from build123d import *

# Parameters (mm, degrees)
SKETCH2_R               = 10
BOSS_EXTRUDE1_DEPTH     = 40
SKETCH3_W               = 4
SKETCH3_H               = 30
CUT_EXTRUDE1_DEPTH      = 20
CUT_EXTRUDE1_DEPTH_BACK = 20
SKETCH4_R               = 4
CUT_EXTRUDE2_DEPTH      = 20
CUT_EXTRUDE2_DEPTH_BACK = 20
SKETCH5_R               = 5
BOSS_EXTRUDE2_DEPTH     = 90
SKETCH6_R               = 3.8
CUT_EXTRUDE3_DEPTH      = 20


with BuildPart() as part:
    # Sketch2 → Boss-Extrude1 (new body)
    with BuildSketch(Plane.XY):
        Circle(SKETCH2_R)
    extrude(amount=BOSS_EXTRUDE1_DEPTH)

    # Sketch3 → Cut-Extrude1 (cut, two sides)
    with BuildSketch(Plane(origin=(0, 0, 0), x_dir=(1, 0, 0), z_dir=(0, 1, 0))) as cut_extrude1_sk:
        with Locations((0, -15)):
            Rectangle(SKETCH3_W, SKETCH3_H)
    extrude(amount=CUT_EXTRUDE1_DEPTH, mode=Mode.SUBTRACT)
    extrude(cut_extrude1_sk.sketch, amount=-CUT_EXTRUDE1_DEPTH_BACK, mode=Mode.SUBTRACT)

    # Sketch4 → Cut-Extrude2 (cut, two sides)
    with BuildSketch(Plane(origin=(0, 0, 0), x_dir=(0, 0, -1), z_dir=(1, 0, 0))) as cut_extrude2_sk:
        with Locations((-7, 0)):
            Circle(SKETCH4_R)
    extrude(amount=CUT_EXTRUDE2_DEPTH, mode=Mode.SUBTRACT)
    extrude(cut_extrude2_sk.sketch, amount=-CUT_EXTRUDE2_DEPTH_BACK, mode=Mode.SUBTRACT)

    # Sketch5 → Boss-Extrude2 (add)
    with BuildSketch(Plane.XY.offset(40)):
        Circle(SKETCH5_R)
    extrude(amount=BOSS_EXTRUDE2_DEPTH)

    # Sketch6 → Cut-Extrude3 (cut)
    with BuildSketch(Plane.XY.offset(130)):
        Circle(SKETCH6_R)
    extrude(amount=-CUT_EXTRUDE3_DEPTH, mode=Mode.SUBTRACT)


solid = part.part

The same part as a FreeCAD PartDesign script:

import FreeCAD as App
import Part
import Sketcher

doc = App.newDocument("Part")
params = doc.addObject("Spreadsheet::Sheet", "Params")
for row, (alias, value) in enumerate([
    ("sketch1_diameter", "20 mm"),
    ("pad1_length", "40 mm"),
    ("sketch2_width", "4 mm"),
    ("sketch2_height", "30 mm"),
    ("sketch3_diameter", "8 mm"),
    ("sketch4_diameter", "10 mm"),
    ("pad2_length", "90 mm"),
    ("sketch5_diameter", "7.6 mm"),
    ("pocket3_length", "20 mm"),
], start=1):
    params.set(f"A{row}", alias)
    params.set(f"B{row}", "=" + value)
    params.setAlias(f"B{row}", alias)

body = doc.addObject("PartDesign::Body", "Body")

# Sketch on XY plane
sketch1 = body.newObject("Sketcher::SketchObject", "Sketch")
sketch1.AttachmentSupport = (doc.getObject("XY_Plane"), [""])
sketch1.MapMode = "FlatFace"
sketch1.addGeometry(Part.Circle(App.Vector(0, 0, 0), App.Vector(0, 0, 1), 10), False)
sketch1.addConstraint(Sketcher.Constraint("Coincident", 0, 3, -1, 1))
sketch1.addConstraint(Sketcher.Constraint("Diameter", 0, 20.0))
sketch1.setExpression("Constraints[1]", "Params.sketch1_diameter")
pad1 = body.newObject("PartDesign::Pad", "Pad")
pad1.Profile = sketch1
pad1.setExpression("Length", "Params.pad1_length")

# Sketch on XZ plane
sketch2 = body.newObject("Sketcher::SketchObject", "Sketch001")
sketch2.AttachmentSupport = (doc.getObject("XZ_Plane"), [""])
sketch2.MapMode = "FlatFace"
sketch2.addGeometry(Part.LineSegment(App.Vector(-2, 0, 0), App.Vector(-2, 30, 0)), False)
sketch2.addGeometry(Part.LineSegment(App.Vector(-2, 30, 0), App.Vector(2, 30, 0)), False)
sketch2.addGeometry(Part.LineSegment(App.Vector(2, 30, 0), App.Vector(2, 0, 0)), False)
sketch2.addGeometry(Part.LineSegment(App.Vector(2, 0, 0), App.Vector(-2, 0, 0)), False)
sketch2.addConstraint(Sketcher.Constraint("Coincident", 0, 2, 1, 1))
sketch2.addConstraint(Sketcher.Constraint("Coincident", 1, 2, 2, 1))
sketch2.addConstraint(Sketcher.Constraint("Coincident", 2, 2, 3, 1))
sketch2.addConstraint(Sketcher.Constraint("Coincident", 3, 2, 0, 1))
sketch2.addConstraint(Sketcher.Constraint("Vertical", 0))
sketch2.addConstraint(Sketcher.Constraint("Horizontal", 1))
sketch2.addConstraint(Sketcher.Constraint("Vertical", 2))
sketch2.addConstraint(Sketcher.Constraint("Horizontal", 3))
sketch2.addConstraint(Sketcher.Constraint("Symmetric", 2, 2, 3, 2, -1, 1))
sketch2.addConstraint(Sketcher.Constraint("DistanceX", 1, 1, 1, 2, 4.0))
sketch2.addConstraint(Sketcher.Constraint("DistanceY", 0, 1, 0, 2, 30.0))
sketch2.setExpression("Constraints[9]", "Params.sketch2_width")
sketch2.setExpression("Constraints[10]", "Params.sketch2_height")
pocket1 = body.newObject("PartDesign::Pocket", "Pocket")
pocket1.Profile = sketch2
pocket1.Type = "ThroughAll"
pocket1.Midplane = True

# Sketch on YZ plane
sketch3 = body.newObject("Sketcher::SketchObject", "Sketch002")
sketch3.AttachmentSupport = (doc.getObject("YZ_Plane"), [""])
sketch3.MapMode = "FlatFace"
sketch3.addGeometry(Part.Circle(App.Vector(0, 7, 0), App.Vector(0, 0, 1), 4), False)
sketch3.addConstraint(Sketcher.Constraint("PointOnObject", 0, 3, -2))
sketch3.addConstraint(Sketcher.Constraint("Diameter", 0, 8.0))
sketch3.addConstraint(Sketcher.Constraint("DistanceY", -1, 1, 0, 3, 7.0))
sketch3.setExpression("Constraints[1]", "Params.sketch3_diameter")
pocket2 = body.newObject("PartDesign::Pocket", "Pocket001")
pocket2.Profile = sketch3
pocket2.Type = "ThroughAll"
pocket2.Midplane = True

# Sketch on XY plane
sketch4 = body.newObject("Sketcher::SketchObject", "Sketch003")
sketch4.AttachmentSupport = (doc.getObject("XY_Plane"), [""])
sketch4.MapMode = "FlatFace"
sketch4.AttachmentOffset = App.Placement(App.Vector(0, 0, 40), App.Rotation())
sketch4.addGeometry(Part.Circle(App.Vector(0, 0, 0), App.Vector(0, 0, 1), 5), False)
sketch4.addConstraint(Sketcher.Constraint("Coincident", 0, 3, -1, 1))
sketch4.addConstraint(Sketcher.Constraint("Diameter", 0, 10.0))
sketch4.setExpression("Constraints[1]", "Params.sketch4_diameter")
pad2 = body.newObject("PartDesign::Pad", "Pad001")
pad2.Profile = sketch4
pad2.setExpression("Length", "Params.pad2_length")

# Sketch on XY plane
sketch5 = body.newObject("Sketcher::SketchObject", "Sketch004")
sketch5.AttachmentSupport = (doc.getObject("XY_Plane"), [""])
sketch5.MapMode = "FlatFace"
sketch5.AttachmentOffset = App.Placement(App.Vector(0, 0, 130), App.Rotation())
sketch5.addGeometry(Part.Circle(App.Vector(0, 0, 0), App.Vector(0, 0, 1), 3.8), False)
sketch5.addConstraint(Sketcher.Constraint("Coincident", 0, 3, -1, 1))
sketch5.addConstraint(Sketcher.Constraint("Diameter", 0, 7.6))
sketch5.setExpression("Constraints[1]", "Params.sketch5_diameter")
pocket3 = body.newObject("PartDesign::Pocket", "Pocket002")
pocket3.Profile = sketch5
pocket3.setExpression("Length", "Params.pocket3_length")

doc.recompute()
